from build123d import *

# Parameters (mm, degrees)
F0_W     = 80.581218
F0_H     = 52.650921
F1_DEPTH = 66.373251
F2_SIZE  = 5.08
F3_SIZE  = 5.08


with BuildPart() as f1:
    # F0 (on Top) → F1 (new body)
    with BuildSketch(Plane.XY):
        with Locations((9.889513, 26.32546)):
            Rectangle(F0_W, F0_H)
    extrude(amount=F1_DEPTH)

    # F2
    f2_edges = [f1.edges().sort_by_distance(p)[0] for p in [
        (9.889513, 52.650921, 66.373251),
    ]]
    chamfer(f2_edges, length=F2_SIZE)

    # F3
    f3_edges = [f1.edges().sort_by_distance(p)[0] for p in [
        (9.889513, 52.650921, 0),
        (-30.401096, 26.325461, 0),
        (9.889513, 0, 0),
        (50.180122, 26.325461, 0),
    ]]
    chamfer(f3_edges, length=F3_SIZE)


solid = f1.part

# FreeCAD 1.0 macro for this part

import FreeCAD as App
import Part
import Sketcher
Q = App.Units.Quantity


def edges_at(feature, points):
    """Names of the edges that pass closest to the given points."""
    edges = feature.Shape.Edges
    near = lambda p: min(range(len(edges)), key=lambda i: edges[i].distToShape(Part.Vertex(*p))[0])
    return sorted({f"Edge{near(p) + 1}" for p in points})


def add_polygon(sketch, points):
    """Adds a closed chain of lines whose ends are joined by coincident constraints."""
    first, n = sketch.GeometryCount, len(points)
    for a, b in zip(points, points[1:] + points[:1]):
        sketch.addGeometry(Part.LineSegment(App.Vector(*a, 0), App.Vector(*b, 0)), False)
    for i in range(n):
        sketch.addConstraint(Sketcher.Constraint("Coincident", first + i, 2, first + (i + 1) % n, 1))

doc = App.newDocument("Part")
body = doc.addObject("PartDesign::Body", "Body")

# Sketch on XY plane
sketch1 = doc.addObject("Sketcher::SketchObject", "Sketch")
body.addObject(sketch1)
sketch1.AttachmentSupport = (doc.XY_Plane, [""])
sketch1.MapMode = "FlatFace"
add_polygon(sketch1, [(-30, 53), (-30, 0), (50, 0), (50, 53)])  # lines 0-3
sketch1.addConstraint([
    Sketcher.Constraint("Vertical", 0),
    Sketcher.Constraint("Horizontal", 1),
    Sketcher.Constraint("Vertical", 2),
    Sketcher.Constraint("Horizontal", 3),
    Sketcher.Constraint("PointOnObject", 0, 2, -1),
    Sketcher.Constraint("DistanceY", 0, 2, 0, 1, Q("52.650921 mm")),
    Sketcher.Constraint("DistanceX", 1, 1, 1, 2, Q("80.581218 mm")),
    Sketcher.Constraint("DistanceX", -1, 1, 1, 2, Q("50.180122 mm")),
])
pad1 = doc.addObject("PartDesign::Pad", "Pad")
body.addObject(pad1)
pad1.Profile = sketch1
pad1.Length = 66.373251
doc.recompute()

chamfer = doc.addObject("PartDesign::Chamfer", "Chamfer")
body.addObject(chamfer)
chamfer.Base = (pad1, edges_at(pad1, [(9.89, 52.651, 66.373)]))
chamfer.Size = Q("0.2 in")
doc.recompute()

chamfer2 = doc.addObject("PartDesign::Chamfer", "Chamfer001")
body.addObject(chamfer2)
chamfer2.Base = (chamfer, edges_at(chamfer, [
    (9.89, 52.651, 0),
    (-30.401, 26.325, 0),
    (9.89, 0, 0),
    (50.18, 26.325, 0),
]))
chamfer2.Size = Q("0.2 in")

doc.recompute()
